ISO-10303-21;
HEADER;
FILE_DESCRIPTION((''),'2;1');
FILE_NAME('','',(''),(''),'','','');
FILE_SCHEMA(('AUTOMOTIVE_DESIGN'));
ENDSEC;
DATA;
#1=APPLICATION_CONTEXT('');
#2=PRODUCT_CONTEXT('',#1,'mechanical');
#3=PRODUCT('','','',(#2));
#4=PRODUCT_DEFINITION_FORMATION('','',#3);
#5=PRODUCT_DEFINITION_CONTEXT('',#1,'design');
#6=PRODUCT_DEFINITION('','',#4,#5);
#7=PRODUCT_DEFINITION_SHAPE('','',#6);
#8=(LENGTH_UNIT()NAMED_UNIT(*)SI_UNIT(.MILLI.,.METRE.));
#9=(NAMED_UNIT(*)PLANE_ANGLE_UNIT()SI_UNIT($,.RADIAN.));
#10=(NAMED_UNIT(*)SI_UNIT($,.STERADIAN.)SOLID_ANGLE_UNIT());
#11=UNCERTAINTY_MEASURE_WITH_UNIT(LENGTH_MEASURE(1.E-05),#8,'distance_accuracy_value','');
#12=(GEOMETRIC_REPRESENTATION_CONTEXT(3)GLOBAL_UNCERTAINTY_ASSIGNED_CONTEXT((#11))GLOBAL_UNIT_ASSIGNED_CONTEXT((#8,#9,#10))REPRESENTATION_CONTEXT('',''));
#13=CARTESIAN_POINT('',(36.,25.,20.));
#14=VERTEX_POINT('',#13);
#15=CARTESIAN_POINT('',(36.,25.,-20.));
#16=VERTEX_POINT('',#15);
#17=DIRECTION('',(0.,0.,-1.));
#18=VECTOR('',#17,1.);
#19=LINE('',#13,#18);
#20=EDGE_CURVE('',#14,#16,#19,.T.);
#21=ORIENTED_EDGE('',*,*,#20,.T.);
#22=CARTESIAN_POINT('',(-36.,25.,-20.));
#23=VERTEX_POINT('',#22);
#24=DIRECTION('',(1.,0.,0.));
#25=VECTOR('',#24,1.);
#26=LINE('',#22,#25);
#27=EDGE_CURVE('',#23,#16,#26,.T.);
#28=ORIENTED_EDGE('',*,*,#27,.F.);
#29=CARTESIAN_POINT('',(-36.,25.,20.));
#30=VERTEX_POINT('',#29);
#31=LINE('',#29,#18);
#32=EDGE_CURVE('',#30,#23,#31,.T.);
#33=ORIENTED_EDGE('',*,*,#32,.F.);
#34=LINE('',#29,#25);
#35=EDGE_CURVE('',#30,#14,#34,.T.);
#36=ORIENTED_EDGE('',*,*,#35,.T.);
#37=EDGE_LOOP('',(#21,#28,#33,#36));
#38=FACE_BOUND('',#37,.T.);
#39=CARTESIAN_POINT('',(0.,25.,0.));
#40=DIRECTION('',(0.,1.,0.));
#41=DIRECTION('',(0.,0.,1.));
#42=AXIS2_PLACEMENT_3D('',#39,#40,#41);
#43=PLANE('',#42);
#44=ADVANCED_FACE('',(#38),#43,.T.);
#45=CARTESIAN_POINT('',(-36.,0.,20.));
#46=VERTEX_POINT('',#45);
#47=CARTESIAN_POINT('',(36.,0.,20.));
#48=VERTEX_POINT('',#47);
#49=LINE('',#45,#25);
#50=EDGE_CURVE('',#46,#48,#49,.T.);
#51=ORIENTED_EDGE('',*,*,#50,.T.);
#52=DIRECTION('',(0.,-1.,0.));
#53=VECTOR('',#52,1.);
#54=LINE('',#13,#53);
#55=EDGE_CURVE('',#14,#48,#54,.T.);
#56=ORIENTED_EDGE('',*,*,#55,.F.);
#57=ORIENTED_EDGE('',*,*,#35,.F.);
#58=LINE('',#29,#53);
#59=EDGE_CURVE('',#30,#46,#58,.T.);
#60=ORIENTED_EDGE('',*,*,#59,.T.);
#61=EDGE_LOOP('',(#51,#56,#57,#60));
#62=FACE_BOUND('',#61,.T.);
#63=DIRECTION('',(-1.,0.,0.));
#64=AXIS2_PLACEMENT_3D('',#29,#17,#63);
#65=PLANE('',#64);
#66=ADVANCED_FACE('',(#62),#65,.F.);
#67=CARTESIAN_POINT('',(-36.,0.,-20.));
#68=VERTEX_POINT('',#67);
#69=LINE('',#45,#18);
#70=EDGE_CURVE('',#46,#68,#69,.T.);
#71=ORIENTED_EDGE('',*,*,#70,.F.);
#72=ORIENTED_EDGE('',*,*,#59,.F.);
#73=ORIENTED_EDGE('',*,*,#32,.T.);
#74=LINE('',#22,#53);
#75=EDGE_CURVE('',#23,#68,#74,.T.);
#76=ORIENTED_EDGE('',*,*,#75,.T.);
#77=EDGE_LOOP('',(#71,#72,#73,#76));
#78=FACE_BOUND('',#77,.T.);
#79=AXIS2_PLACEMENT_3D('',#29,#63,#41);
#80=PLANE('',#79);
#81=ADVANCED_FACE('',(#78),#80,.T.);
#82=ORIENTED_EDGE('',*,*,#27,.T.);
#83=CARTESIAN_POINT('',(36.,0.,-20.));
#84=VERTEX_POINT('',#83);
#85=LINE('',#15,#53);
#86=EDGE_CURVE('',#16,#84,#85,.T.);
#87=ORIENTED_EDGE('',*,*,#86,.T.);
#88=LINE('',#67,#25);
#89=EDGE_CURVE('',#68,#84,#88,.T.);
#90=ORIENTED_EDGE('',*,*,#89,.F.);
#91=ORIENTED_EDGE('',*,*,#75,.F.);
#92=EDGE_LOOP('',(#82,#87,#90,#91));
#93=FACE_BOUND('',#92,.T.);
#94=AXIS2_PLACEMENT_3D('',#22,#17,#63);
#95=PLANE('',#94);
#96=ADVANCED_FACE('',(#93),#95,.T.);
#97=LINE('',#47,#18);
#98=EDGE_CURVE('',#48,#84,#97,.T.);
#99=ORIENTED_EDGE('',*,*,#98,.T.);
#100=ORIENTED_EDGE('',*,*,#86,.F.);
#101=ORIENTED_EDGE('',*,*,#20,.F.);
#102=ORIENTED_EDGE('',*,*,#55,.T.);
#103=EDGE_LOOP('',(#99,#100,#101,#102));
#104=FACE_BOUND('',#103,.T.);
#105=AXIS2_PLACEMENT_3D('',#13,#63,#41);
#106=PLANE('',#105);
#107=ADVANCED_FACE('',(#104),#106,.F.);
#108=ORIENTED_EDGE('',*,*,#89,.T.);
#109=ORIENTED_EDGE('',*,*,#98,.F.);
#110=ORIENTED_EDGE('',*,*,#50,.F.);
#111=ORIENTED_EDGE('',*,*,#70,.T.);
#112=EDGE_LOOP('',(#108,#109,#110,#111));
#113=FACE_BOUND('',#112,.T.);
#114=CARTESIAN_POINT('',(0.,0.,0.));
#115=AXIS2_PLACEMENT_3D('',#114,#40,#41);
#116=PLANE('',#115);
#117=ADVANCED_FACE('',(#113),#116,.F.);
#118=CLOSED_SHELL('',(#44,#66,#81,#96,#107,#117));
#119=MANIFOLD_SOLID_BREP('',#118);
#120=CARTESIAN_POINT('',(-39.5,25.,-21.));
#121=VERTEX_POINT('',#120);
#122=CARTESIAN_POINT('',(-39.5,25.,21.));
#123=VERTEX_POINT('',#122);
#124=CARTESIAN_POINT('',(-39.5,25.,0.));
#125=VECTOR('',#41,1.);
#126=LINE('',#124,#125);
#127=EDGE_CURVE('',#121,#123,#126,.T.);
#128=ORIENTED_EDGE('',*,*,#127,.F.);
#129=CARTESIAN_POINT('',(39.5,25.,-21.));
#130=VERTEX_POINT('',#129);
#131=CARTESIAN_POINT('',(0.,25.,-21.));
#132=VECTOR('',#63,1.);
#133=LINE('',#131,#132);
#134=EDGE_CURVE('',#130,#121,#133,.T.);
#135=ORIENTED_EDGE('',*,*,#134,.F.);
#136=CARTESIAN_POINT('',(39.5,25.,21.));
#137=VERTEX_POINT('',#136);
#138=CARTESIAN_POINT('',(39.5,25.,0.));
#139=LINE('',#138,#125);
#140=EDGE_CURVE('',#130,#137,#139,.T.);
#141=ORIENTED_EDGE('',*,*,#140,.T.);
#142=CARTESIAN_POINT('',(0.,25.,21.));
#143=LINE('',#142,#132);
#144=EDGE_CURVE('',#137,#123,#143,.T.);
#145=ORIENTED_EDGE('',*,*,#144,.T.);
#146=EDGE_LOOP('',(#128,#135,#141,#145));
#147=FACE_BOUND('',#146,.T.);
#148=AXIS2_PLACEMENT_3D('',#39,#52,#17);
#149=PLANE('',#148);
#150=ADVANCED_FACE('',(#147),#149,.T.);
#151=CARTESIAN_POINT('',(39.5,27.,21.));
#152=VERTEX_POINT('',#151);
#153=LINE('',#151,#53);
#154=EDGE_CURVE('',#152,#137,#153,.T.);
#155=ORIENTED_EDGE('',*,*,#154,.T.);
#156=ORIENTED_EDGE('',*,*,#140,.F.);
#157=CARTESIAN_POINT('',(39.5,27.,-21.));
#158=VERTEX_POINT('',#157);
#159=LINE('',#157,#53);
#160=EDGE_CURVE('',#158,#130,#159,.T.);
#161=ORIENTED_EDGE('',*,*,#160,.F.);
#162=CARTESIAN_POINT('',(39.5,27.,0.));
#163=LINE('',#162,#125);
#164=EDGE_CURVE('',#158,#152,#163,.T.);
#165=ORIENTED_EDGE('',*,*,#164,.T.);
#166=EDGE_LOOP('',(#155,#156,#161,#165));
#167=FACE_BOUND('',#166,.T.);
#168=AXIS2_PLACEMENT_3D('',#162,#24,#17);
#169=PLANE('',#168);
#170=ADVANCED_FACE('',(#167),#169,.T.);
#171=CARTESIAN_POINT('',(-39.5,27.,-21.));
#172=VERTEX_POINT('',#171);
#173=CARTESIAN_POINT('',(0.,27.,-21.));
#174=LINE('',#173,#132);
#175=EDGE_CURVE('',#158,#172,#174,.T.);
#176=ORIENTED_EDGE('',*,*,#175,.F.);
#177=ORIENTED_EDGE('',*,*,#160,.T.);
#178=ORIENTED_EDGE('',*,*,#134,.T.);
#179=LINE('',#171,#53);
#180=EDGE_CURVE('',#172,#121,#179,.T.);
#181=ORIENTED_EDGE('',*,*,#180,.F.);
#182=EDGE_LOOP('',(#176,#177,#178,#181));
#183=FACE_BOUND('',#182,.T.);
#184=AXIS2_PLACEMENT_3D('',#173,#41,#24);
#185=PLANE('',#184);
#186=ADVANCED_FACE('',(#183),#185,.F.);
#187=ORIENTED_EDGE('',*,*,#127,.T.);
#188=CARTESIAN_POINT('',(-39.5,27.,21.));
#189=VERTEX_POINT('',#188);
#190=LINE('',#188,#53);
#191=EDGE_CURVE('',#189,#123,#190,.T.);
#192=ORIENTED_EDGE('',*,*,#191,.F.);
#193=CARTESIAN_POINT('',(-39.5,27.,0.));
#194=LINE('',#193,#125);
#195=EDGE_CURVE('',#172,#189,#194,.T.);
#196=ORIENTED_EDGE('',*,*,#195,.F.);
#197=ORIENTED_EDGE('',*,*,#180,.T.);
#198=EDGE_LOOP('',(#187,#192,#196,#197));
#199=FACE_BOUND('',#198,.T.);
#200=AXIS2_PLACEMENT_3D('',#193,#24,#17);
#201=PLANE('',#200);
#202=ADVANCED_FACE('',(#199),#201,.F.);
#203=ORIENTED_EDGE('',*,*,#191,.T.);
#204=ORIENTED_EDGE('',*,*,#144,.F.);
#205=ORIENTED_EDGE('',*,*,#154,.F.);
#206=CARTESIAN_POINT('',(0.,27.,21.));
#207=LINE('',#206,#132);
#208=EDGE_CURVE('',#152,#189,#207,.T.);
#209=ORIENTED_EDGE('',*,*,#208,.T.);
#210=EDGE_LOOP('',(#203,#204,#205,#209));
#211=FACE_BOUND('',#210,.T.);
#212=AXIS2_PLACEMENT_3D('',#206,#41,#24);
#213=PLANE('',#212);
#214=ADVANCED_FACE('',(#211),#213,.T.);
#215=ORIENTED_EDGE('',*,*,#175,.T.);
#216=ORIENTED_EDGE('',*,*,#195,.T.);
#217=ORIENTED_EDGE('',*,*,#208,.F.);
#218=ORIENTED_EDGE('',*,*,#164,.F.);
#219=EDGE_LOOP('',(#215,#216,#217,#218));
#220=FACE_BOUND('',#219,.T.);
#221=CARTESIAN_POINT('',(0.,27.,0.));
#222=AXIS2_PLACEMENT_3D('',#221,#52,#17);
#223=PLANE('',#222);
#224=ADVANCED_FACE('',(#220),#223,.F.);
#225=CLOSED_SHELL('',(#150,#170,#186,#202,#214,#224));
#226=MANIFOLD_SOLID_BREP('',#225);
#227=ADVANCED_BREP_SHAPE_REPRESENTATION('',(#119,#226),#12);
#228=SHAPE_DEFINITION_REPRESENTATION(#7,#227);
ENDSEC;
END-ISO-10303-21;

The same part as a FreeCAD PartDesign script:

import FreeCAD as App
import Part
import Sketcher
from FreeCAD import Vector
Q = App.Units.Quantity


def add_polygon(sketch, points):
    """Adds a closed chain of lines whose ends are joined by coincident constraints."""
    first, n = sketch.GeometryCount, len(points)
    for a, b in zip(points, points[1:] + points[:1]):
        sketch.addGeometry(Part.LineSegment(App.Vector(*a, 0), App.Vector(*b, 0)), False)
    for i in range(n):
        sketch.addConstraint(Sketcher.Constraint("Coincident", first + i, 2, first + (i + 1) % n, 1))

doc = App.newDocument("Part")
body = doc.addObject("PartDesign::Body", "Body")

sketch1 = body.newObject("Sketcher::SketchObject", "Sketch")
sketch1.AttachmentSupport = (doc.getObject("XZ_Plane"), [""])
sketch1.MapMode = "FlatFace"
add_polygon(sketch1, [(-36, -20), (-36, 20), (36, 20), (36, -20)])
sketch1.addConstraint(Sketcher.Constraint("Vertical", 0))
sketch1.addConstraint(Sketcher.Constraint("Horizontal", 1))
sketch1.addConstraint(Sketcher.Constraint("Vertical", 2))
sketch1.addConstraint(Sketcher.Constraint("Horizontal", 3))
sketch1.addConstraint(Sketcher.Constraint("Symmetric", 0, 2, 2, 2, -1, 1))
sketch1.addConstraint(Sketcher.Constraint("DistanceX", 1, 1, 1, 2, Q("72 mm")))
sketch1.addConstraint(Sketcher.Constraint("DistanceY", 0, 1, 0, 2, Q("40 mm")))
pad1 = body.newObject("PartDesign::Pad", "Pad")
pad1.Profile = sketch1
pad1.Length = 25
pad1.Reversed = True
body2 = doc.addObject("PartDesign::Body", "Body001")

sketch2 = body2.newObject("Sketcher::SketchObject", "Sketch001")
sketch2.AttachmentSupport = (doc.getObject("XZ_Plane001"), [""])
sketch2.MapMode = "FlatFace"
sketch2.AttachmentOffset = App.Placement(Vector(0, 0, -25), App.Rotation())
add_polygon(sketch2, [(-40, -21), (-40, 21), (40, 21), (40, -21)])
sketch2.addConstraint(Sketcher.Constraint("Vertical", 0))
sketch2.addConstraint(Sketcher.Constraint("Horizontal", 1))
sketch2.addConstraint(Sketcher.Constraint("Vertical", 2))
sketch2.addConstraint(Sketcher.Constraint("Horizontal", 3))
sketch2.addConstraint(Sketcher.Constraint("Symmetric", 0, 2, 2, 2, -1, 1))
sketch2.addConstraint(Sketcher.Constraint("DistanceX", 1, 1, 1, 2, Q("79 mm")))
sketch2.addConstraint(Sketcher.Constraint("DistanceY", 0, 1, 0, 2, Q("42 mm")))
pad2 = body2.newObject("PartDesign::Pad", "Pad001")
pad2.Profile = sketch2
pad2.Length = 2
pad2.Reversed = True

doc.recompute()
